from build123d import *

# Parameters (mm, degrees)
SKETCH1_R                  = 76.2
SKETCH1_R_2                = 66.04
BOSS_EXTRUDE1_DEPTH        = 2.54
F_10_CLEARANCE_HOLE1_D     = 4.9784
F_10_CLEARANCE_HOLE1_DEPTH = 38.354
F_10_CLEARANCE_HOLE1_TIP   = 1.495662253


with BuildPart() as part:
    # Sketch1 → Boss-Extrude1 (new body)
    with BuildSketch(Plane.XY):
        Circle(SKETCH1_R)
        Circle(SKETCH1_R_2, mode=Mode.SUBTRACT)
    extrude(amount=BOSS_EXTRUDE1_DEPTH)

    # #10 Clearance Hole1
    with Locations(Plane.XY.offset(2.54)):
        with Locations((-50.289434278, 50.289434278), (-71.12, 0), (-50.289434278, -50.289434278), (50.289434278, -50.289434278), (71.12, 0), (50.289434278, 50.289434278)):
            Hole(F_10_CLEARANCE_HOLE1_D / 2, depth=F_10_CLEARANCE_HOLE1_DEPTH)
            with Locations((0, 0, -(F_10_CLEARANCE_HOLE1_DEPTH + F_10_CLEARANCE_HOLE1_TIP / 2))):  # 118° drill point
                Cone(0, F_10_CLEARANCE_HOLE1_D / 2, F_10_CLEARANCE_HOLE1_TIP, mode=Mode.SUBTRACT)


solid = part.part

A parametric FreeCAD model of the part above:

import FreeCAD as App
import Part
import Sketcher

V = App.Vector
Q = App.Units.Quantity

doc = App.newDocument("Part")
body = doc.addObject("PartDesign::Body", "Body")

sketch1 = body.newObject("Sketcher::SketchObject", "Sketch")
sketch1.AttachmentSupport = (doc.getObject("XY_Plane"), [""])
sketch1.MapMode = "FlatFace"
sketch1.addGeometry(Part.Circle(V(0, 0, 0), V(0, 0, 1), 76.2), False)
sketch1.addGeometry(Part.Circle(V(0, 0, 0), V(0, 0, 1), 66.04), False)
sketch1.addConstraint(Sketcher.Constraint("Coincident", 0, 3, -1, 1))
sketch1.addConstraint(Sketcher.Constraint("Coincident", 1, 3, -1, 1))
sketch1.addConstraint(Sketcher.Constraint("Diameter", 0, Q("6 in")))
sketch1.addConstraint(Sketcher.Constraint("Diameter", 1, Q("5.2 in")))
pad1 = body.newObject("PartDesign::Pad", "Pad")
pad1.Profile = sketch1
pad1.Length = Q("0.1 in")

sketch2 = body.newObject("Sketcher::SketchObject", "Sketch001")
sketch2.AttachmentSupport = (doc.getObject("XY_Plane"), [""])
sketch2.MapMode = "FlatFace"
sketch2.AttachmentOffset = App.Placement(V(0, 0, 0.1 * 25.4), App.Rotation())
sketch2.addGeometry(Part.Circle(V(-50.289434, 50.289434, 0), V(0, 0, 1), 2.4892), False)
sketch2.addGeometry(Part.Circle(V(-71.12, 0, 0), V(0, 0, 1), 2.4892), False)
sketch2.addGeometry(Part.Circle(V(-50.289434, -50.289434, 0), V(0, 0, 1), 2.4892), False)
sketch2.addGeometry(Part.Circle(V(50.289434, -50.289434, 0), V(0, 0, 1), 2.4892), False)
sketch2.addGeometry(Part.Circle(V(71.12, 0, 0), V(0, 0, 1), 2.4892), False)
sketch2.addGeometry(Part.Circle(V(50.289434, 50.289434, 0), V(0, 0, 1), 2.4892), False)
sketch2.addConstraint(Sketcher.Constraint("Equal", 0, 1))
sketch2.addConstraint(Sketcher.Constraint("Equal", 1, 2))
sketch2.addConstraint(Sketcher.Constraint("Equal", 2, 3))
sketch2.addConstraint(Sketcher.Constraint("Equal", 3, 4))
sketch2.addConstraint(Sketcher.Constraint("Equal", 4, 5))
sketch2.addConstraint(Sketcher.Constraint("Symmetric", 0, 3, 3, 3, -1, 1))
sketch2.addConstraint(Sketcher.Constraint("Symmetric", 1, 3, 4, 3, -1, 1))
sketch2.addConstraint(Sketcher.Constraint("Symmetric", 2, 3, 5, 3, -1, 1))
sketch2.addConstraint(Sketcher.Constraint("Symmetric", 2, 3, 3, 3, -2))
sketch2.addConstraint(Sketcher.Constraint("PointOnObject", 1, 3, -1))
sketch2.addConstraint(Sketcher.Constraint("Diameter", 0, Q("0.196 in")))
sketch2.addConstraint(Sketcher.Constraint("DistanceX", 1, 3, -1, 1, Q("2.8 in")))
sketch2.addConstraint(Sketcher.Constraint("DistanceY", 2, 3, 0, 3, 100.578869))
sketch2.addConstraint(Sketcher.Constraint("DistanceX", 2, 3, 3, 3, 100.578869))
doc.recompute()
hole = body.newObject("PartDesign::Hole", "Hole")
hole.Profile = sketch2
hole.ThreadType = "None"
hole.Diameter = Q("0.196 in")
hole.DepthType = "Dimension"
hole.Depth = Q("1.51 in")
hole.DrillPoint = "Angled"
hole.DrillPointAngle = 118

doc.recompute()
